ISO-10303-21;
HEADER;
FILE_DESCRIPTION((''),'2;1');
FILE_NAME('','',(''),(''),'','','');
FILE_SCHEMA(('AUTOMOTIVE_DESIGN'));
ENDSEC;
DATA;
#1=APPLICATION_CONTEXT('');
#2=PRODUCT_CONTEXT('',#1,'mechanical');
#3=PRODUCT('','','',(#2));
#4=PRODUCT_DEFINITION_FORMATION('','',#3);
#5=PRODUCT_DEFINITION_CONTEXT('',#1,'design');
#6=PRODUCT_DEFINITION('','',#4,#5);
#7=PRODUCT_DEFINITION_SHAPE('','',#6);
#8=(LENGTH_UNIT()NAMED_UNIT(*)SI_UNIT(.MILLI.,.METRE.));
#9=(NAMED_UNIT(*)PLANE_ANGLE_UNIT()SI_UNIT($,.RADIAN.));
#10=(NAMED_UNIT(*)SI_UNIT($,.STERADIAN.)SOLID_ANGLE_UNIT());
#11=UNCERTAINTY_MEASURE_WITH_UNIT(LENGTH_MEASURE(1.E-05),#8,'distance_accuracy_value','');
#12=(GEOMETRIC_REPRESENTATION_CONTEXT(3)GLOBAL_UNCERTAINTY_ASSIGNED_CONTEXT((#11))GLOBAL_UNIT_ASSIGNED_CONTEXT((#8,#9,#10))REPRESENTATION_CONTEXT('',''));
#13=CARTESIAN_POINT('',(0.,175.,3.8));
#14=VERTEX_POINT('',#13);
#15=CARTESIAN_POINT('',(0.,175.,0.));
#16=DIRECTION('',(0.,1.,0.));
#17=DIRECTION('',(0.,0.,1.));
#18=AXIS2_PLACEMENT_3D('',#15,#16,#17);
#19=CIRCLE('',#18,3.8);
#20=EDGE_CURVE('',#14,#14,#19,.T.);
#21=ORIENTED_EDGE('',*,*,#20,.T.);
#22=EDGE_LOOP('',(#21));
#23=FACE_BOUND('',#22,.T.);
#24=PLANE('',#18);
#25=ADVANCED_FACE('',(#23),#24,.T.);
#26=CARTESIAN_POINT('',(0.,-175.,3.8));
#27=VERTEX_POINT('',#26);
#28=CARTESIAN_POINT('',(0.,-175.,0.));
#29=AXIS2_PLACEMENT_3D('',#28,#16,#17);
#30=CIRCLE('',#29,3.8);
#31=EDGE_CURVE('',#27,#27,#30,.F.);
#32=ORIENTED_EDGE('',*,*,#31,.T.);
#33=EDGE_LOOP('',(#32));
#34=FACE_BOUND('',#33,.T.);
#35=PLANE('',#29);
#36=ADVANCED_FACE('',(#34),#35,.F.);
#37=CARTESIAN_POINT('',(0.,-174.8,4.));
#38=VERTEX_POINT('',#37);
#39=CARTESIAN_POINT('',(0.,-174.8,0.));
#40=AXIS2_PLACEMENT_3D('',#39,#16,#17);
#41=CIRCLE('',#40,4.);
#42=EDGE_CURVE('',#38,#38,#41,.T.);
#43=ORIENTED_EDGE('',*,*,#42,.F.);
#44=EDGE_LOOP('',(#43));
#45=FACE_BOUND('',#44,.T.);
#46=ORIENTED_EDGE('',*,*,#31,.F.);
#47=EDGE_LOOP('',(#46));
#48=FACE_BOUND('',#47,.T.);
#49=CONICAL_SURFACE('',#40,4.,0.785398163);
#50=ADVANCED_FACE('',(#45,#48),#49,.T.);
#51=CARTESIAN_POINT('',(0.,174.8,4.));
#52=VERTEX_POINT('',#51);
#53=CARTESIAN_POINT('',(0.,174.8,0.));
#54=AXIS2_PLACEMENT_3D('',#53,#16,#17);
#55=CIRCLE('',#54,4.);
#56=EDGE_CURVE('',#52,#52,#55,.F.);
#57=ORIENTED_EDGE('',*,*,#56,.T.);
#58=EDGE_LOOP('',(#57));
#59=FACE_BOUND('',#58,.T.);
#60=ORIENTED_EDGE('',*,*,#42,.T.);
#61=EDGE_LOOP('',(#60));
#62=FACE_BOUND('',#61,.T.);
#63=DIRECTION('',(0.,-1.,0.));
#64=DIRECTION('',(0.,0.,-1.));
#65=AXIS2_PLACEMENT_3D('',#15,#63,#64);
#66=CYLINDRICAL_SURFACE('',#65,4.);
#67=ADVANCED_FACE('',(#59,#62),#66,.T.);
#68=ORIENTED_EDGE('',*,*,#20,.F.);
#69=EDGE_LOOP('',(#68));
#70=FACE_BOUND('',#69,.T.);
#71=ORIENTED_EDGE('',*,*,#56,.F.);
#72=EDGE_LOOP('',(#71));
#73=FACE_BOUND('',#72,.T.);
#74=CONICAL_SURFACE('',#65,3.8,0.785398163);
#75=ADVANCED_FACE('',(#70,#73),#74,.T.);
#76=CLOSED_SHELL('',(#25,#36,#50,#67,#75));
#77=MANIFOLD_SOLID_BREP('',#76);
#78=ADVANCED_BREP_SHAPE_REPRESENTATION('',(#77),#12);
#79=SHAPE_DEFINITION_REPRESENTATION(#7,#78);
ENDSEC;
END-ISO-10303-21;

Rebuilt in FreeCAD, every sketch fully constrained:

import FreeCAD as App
import Part
import Sketcher
Q = App.Units.Quantity


def edges_at(feature, points):
    """Names of the edges that pass closest to the given points."""
    edges = feature.Shape.Edges
    near = lambda p: min(range(len(edges)), key=lambda i: edges[i].distToShape(Part.Vertex(*p))[0])
    return sorted({f"Edge{near(p) + 1}" for p in points})

doc = App.newDocument("Part")
body = doc.addObject("PartDesign::Body", "Body")

# Sketch on XZ plane
sketch1 = body.newObject("Sketcher::SketchObject", "Sketch")
sketch1.AttachmentSupport = (doc.getObject("XZ_Plane"), [""])
sketch1.MapMode = "FlatFace"
sketch1.addGeometry(Part.Circle(App.Vector(0, 0, 0), App.Vector(0, 0, 1), 4), False)
sketch1.addConstraint([
    Sketcher.Constraint("Coincident", 0, 3, -1, 1),
    Sketcher.Constraint("Diameter", 0, Q("8 mm")),
])
pad1 = body.newObject("PartDesign::Pad", "Pad")
pad1.Profile = sketch1
pad1.Length = 350
pad1.Midplane = True
doc.recompute()

chamfer = body.newObject("PartDesign::Chamfer", "Chamfer")
chamfer.Base = (pad1, edges_at(pad1, [(-4, -175, 0), (-4, 175, 0)]))
chamfer.Size = 0.2

doc.recompute()
